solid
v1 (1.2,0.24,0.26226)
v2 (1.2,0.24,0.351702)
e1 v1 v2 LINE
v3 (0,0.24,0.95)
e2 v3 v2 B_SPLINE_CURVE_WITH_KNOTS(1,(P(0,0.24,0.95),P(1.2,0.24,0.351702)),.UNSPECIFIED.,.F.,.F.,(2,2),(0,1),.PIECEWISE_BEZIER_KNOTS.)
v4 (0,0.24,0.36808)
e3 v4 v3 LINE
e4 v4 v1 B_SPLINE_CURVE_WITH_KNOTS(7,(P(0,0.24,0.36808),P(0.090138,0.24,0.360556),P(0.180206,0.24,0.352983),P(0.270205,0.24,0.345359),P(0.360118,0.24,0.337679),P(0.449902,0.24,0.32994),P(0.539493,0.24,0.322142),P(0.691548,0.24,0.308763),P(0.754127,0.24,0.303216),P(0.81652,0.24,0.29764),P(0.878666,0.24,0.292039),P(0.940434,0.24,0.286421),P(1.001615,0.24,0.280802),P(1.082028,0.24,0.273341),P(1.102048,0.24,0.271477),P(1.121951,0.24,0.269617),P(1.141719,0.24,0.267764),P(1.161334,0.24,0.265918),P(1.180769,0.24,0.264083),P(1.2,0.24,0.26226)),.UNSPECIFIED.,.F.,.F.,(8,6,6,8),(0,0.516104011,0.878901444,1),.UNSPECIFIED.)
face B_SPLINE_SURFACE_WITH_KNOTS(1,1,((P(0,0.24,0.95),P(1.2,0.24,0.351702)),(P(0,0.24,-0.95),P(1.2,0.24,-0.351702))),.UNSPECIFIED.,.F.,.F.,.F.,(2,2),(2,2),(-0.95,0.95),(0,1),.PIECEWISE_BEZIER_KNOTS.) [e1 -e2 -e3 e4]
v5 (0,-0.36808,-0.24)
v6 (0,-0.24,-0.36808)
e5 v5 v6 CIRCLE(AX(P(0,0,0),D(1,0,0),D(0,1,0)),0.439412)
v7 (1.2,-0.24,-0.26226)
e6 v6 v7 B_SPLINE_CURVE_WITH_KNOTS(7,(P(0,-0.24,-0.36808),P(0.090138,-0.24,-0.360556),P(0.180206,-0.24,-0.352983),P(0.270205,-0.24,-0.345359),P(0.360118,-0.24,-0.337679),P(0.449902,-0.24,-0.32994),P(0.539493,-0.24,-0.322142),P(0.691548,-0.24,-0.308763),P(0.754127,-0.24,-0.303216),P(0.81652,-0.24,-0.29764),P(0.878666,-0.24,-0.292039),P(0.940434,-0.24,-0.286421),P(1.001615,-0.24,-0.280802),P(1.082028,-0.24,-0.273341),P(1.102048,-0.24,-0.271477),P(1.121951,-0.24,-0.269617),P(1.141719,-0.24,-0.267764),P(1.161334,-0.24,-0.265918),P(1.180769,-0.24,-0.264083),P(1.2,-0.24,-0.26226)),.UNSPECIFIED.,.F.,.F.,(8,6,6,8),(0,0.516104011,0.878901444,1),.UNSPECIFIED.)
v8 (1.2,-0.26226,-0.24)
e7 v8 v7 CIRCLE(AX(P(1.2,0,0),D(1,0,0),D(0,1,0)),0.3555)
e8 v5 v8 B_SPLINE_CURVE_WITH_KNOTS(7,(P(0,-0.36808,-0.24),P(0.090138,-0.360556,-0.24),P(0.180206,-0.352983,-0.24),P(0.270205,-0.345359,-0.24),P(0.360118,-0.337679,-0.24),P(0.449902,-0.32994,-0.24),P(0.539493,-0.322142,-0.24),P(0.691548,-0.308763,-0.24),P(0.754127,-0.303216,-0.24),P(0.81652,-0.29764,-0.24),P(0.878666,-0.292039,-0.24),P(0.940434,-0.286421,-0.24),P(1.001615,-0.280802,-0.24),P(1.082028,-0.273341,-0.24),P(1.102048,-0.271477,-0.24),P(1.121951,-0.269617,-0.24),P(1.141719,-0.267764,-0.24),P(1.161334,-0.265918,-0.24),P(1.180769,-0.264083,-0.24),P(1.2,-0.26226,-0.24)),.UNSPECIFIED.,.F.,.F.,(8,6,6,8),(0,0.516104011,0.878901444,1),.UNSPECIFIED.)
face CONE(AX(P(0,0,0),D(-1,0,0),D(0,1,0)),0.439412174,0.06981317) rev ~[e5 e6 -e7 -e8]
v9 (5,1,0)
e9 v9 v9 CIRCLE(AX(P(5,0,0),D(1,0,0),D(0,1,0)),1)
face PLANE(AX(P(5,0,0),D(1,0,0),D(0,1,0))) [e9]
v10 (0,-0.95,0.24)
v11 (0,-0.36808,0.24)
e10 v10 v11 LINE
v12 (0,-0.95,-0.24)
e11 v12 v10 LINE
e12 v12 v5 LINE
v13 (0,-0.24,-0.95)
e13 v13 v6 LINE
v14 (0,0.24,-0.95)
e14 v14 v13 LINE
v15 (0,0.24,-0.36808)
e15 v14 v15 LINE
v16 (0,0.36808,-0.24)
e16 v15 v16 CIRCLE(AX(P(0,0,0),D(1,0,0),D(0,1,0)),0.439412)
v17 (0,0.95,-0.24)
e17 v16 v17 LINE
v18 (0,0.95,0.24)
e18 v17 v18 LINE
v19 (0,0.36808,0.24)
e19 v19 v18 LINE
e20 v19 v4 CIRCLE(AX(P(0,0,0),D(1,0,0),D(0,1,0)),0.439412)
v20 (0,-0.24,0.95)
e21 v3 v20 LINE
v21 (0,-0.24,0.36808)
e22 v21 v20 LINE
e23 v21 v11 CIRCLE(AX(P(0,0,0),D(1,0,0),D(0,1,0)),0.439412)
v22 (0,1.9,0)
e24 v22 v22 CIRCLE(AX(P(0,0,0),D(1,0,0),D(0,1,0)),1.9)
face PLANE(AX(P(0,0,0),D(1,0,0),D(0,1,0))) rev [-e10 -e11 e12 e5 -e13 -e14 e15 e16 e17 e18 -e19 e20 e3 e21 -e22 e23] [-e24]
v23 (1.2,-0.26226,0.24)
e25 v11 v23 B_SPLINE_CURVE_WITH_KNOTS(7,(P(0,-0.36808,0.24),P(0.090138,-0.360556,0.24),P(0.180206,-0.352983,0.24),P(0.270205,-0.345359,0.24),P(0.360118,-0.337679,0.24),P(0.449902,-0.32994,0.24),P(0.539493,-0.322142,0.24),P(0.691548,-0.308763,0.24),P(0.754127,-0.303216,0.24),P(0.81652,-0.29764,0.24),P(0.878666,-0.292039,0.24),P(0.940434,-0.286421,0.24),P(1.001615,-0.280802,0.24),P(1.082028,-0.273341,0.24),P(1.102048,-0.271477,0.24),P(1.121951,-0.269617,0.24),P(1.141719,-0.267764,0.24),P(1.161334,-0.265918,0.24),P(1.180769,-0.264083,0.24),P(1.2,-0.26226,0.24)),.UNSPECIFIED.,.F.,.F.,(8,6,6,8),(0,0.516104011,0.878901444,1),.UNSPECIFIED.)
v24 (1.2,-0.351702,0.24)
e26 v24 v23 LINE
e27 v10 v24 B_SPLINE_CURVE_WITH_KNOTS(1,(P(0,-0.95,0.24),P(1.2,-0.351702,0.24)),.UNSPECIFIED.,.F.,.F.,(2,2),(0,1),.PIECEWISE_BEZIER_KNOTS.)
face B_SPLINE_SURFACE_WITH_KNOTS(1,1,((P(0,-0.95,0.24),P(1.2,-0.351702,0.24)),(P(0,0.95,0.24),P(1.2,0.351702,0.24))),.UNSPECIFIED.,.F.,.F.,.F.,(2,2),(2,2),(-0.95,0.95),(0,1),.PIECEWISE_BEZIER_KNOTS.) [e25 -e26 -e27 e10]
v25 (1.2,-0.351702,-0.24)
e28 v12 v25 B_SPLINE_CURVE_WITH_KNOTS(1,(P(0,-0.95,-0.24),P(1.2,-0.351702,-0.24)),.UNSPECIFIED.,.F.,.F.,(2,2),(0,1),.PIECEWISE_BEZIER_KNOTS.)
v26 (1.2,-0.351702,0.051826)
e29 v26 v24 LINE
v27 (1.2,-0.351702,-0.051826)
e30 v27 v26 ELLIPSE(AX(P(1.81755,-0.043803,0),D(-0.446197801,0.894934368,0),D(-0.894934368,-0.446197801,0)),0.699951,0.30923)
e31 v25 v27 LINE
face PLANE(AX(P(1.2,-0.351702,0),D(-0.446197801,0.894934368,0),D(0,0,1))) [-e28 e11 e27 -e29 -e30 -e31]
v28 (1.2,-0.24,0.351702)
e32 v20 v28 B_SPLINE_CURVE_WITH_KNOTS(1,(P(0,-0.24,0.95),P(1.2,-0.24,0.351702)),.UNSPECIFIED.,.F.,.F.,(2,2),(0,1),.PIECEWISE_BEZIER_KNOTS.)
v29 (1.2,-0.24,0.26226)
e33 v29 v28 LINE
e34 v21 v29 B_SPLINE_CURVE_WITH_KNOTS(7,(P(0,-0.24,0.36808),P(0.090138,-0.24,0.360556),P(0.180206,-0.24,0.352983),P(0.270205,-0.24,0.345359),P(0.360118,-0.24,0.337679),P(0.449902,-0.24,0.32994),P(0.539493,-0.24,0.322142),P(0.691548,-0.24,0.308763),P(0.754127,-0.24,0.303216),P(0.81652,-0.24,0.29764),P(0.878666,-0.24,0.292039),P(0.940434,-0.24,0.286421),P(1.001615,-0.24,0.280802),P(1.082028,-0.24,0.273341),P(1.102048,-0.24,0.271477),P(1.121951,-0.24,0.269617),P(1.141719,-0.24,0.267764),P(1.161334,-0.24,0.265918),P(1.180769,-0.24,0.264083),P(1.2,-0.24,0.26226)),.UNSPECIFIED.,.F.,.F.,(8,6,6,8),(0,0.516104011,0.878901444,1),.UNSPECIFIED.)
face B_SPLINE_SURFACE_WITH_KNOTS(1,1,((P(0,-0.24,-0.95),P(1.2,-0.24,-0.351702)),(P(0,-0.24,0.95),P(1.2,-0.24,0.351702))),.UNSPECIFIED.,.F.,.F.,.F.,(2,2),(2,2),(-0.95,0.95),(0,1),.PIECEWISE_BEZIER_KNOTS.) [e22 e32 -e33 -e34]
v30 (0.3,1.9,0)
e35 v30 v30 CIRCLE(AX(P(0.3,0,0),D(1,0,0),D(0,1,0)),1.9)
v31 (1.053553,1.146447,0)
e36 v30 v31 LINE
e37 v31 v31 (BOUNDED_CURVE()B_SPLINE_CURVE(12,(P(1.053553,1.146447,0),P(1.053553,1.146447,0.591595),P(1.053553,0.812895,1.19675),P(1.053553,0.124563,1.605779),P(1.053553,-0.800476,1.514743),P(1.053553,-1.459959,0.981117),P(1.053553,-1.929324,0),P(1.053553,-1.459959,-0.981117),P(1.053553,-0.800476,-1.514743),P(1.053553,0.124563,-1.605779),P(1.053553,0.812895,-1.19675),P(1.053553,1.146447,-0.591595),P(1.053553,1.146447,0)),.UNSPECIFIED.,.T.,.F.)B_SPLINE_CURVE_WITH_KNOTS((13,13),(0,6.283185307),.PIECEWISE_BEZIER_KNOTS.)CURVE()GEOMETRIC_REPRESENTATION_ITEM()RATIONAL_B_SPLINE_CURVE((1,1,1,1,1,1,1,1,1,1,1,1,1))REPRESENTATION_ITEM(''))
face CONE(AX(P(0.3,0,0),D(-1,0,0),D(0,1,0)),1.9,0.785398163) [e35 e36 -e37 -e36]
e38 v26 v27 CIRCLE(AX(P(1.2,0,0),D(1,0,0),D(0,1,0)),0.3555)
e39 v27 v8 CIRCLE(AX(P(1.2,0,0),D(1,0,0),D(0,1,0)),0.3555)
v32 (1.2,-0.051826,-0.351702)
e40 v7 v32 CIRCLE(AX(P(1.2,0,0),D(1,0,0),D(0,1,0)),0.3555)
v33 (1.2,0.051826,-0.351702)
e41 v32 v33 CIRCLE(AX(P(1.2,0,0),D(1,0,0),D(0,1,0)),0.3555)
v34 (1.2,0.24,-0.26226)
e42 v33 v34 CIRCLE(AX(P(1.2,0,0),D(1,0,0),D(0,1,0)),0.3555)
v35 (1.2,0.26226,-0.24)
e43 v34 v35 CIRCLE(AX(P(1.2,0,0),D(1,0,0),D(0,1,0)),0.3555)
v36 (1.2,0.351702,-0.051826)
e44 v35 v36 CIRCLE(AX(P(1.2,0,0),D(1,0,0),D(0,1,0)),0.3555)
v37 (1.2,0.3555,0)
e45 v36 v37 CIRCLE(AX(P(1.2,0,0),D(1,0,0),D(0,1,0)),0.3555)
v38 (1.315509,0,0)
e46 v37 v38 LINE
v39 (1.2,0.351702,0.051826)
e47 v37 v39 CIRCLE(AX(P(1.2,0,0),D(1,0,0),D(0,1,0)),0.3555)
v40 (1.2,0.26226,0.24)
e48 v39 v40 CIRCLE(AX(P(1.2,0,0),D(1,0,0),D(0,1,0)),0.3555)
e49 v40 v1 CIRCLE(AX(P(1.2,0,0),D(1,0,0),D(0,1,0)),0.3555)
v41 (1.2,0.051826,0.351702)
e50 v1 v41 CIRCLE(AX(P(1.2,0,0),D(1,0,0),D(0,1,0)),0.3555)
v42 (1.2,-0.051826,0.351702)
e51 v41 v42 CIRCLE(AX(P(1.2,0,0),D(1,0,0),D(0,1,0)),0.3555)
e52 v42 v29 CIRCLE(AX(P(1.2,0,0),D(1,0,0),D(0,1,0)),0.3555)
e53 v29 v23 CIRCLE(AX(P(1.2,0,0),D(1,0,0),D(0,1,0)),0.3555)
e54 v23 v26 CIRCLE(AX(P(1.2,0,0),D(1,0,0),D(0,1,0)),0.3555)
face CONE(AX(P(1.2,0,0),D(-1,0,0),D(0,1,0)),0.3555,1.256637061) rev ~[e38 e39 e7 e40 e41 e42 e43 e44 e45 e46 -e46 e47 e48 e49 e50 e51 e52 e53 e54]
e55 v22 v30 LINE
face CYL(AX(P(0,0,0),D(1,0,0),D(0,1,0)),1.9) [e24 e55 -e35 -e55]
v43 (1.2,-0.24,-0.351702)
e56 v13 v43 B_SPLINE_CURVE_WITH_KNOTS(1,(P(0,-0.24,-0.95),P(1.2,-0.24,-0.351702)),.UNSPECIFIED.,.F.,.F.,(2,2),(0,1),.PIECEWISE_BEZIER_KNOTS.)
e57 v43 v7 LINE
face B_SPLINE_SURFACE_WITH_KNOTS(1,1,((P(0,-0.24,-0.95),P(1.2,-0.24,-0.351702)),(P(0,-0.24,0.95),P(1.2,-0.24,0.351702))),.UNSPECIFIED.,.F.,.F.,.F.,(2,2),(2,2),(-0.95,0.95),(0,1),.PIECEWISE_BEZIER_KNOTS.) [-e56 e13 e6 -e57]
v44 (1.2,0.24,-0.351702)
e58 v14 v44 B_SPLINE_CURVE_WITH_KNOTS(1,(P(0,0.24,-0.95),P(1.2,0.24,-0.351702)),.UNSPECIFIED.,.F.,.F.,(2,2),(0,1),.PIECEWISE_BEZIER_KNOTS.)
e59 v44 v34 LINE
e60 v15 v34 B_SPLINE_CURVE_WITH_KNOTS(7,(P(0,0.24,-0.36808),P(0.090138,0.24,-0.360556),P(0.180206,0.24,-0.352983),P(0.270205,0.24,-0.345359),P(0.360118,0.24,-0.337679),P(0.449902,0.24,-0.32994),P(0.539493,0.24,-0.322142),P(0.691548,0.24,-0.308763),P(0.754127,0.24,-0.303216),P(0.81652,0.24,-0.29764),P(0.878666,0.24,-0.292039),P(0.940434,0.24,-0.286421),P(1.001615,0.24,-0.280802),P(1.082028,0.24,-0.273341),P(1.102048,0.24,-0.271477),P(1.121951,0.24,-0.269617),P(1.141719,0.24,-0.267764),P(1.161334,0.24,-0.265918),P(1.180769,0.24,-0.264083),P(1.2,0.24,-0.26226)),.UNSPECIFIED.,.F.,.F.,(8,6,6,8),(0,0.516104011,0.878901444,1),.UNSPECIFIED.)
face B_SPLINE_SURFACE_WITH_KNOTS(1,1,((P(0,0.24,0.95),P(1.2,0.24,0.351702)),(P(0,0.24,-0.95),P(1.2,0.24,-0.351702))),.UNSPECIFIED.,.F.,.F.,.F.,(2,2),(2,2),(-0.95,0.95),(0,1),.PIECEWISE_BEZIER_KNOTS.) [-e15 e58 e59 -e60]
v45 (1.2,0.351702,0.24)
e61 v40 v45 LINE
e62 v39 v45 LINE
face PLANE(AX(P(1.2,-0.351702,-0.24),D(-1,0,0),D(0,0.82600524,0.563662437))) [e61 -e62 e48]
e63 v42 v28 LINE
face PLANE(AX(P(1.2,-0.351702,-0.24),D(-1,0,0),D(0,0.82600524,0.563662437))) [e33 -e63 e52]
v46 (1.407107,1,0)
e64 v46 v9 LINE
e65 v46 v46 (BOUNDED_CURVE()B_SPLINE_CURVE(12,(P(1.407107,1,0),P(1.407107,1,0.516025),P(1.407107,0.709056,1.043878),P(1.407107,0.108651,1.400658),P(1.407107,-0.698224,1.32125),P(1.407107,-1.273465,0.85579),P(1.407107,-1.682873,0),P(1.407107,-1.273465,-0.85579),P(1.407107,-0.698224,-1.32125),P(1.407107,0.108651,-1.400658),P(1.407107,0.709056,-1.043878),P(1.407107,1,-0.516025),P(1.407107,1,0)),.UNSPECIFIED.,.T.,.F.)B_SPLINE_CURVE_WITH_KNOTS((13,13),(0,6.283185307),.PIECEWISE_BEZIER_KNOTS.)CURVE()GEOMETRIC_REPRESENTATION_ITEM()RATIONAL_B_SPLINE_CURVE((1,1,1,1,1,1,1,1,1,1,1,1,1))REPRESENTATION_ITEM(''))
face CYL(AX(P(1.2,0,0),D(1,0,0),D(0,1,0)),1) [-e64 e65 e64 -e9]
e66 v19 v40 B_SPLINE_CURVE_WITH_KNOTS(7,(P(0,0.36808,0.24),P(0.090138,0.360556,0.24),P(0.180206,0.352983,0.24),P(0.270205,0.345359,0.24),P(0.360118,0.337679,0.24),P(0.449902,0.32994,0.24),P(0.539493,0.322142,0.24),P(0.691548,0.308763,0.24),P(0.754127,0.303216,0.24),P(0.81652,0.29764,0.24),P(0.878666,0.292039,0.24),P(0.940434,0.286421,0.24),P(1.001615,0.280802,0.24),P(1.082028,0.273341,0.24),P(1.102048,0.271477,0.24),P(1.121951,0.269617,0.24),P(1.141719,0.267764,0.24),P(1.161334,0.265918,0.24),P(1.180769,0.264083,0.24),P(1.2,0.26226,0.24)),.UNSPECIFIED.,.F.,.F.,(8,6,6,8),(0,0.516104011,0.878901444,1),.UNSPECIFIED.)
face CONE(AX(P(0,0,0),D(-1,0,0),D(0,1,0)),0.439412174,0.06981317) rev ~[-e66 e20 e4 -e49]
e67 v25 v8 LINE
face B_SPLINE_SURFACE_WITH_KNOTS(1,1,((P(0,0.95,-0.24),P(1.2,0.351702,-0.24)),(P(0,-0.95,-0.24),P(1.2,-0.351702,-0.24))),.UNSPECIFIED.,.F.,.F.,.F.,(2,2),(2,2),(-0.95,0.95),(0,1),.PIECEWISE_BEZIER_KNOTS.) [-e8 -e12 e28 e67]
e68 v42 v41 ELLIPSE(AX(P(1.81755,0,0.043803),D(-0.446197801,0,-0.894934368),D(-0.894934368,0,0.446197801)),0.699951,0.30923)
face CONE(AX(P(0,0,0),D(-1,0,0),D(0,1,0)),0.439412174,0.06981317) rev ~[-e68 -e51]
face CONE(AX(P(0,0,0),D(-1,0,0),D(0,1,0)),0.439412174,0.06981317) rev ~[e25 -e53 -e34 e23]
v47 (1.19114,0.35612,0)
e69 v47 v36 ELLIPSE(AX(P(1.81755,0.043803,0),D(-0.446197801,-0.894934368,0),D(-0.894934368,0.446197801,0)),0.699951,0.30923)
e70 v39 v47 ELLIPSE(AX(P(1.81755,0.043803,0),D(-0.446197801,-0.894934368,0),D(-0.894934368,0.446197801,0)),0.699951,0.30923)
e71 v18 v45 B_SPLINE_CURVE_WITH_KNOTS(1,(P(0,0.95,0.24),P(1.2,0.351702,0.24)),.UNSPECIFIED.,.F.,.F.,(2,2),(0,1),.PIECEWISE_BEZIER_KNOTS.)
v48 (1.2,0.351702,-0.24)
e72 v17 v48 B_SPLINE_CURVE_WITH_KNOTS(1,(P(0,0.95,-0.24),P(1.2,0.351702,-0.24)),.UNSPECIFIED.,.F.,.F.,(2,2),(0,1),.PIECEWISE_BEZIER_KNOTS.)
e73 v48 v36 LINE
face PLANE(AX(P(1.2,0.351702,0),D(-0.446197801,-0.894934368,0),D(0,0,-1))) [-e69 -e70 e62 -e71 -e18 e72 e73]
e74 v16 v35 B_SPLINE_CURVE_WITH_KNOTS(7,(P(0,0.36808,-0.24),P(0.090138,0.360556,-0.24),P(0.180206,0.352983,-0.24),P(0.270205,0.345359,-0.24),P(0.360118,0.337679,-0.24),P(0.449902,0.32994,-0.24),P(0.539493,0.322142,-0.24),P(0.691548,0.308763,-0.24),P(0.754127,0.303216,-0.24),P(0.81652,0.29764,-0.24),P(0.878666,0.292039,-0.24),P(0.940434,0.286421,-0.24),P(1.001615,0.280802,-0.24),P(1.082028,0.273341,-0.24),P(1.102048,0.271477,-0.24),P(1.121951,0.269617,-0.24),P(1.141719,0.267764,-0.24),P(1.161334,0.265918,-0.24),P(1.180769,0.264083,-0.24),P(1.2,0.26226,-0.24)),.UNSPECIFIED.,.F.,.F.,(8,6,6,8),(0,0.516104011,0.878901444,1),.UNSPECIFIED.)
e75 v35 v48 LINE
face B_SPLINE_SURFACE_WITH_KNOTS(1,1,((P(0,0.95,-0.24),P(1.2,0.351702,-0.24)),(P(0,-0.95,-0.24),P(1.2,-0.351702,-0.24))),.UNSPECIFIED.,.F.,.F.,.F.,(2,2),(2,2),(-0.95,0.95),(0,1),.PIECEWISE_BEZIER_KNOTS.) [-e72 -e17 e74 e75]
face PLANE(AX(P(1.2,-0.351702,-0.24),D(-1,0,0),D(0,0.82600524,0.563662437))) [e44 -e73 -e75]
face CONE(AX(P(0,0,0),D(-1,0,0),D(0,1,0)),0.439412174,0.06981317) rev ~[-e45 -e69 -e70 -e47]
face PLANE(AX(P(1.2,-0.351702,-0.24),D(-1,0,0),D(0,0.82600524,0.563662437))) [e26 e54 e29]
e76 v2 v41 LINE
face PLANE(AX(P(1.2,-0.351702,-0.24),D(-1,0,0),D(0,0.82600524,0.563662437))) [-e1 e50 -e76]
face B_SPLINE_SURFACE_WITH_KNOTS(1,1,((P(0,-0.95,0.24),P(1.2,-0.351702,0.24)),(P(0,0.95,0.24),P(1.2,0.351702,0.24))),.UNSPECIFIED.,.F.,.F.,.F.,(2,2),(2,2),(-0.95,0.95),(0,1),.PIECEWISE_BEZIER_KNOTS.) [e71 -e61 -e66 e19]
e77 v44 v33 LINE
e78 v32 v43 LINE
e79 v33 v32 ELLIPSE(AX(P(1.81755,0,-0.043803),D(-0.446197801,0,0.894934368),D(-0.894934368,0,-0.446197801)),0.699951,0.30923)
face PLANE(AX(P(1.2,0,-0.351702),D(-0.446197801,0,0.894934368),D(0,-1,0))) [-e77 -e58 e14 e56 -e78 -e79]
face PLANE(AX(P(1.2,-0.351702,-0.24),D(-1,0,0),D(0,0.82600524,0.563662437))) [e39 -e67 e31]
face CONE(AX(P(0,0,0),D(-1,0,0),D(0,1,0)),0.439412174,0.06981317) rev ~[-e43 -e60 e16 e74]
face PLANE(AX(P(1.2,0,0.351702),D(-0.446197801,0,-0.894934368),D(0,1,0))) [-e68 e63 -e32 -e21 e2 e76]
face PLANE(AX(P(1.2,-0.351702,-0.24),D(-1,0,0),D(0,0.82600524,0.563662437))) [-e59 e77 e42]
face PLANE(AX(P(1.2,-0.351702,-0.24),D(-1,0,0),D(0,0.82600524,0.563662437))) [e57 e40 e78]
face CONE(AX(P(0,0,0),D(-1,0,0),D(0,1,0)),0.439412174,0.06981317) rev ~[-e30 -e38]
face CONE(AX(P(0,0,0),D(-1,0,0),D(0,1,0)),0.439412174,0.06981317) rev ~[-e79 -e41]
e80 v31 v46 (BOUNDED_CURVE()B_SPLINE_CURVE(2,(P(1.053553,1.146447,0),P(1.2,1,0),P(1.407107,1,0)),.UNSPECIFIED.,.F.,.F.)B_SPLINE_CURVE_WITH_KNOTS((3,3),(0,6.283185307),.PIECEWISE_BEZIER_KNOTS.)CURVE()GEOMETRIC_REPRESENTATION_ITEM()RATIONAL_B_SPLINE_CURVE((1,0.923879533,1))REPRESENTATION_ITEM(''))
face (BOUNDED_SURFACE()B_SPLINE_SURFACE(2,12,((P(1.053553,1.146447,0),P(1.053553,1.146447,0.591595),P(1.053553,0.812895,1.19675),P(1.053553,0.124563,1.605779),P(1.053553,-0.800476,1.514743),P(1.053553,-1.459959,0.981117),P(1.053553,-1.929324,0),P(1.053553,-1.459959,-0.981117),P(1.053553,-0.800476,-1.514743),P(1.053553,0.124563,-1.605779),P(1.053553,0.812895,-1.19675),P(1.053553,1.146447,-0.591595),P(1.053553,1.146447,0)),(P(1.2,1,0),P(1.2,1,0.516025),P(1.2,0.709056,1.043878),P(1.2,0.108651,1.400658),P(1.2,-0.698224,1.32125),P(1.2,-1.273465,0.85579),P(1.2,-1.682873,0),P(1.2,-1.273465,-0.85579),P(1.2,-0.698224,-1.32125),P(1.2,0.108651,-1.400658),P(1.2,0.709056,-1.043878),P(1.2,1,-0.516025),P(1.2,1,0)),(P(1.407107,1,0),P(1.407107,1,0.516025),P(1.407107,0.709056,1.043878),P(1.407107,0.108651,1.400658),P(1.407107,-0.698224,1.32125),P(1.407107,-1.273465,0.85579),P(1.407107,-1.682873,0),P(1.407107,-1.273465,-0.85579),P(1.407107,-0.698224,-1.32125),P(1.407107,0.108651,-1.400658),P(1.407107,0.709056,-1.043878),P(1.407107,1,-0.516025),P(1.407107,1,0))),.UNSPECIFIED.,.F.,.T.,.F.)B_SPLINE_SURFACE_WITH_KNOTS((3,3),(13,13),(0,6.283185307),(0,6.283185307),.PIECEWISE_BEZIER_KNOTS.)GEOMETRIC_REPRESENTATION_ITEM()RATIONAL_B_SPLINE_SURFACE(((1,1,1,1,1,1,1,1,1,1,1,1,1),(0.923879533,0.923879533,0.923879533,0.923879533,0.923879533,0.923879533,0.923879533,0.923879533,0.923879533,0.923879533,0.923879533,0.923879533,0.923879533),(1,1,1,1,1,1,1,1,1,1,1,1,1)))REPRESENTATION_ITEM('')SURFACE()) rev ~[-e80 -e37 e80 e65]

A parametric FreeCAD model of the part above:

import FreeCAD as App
import Part
import Sketcher
Q = App.Units.Quantity


def edges_at(feature, points):
    """Names of the edges that pass closest to the given points."""
    edges = feature.Shape.Edges
    near = lambda p: min(range(len(edges)), key=lambda i: edges[i].distToShape(Part.Vertex(*p))[0])
    return sorted({f"Edge{near(p) + 1}" for p in points})


def add_polygon(sketch, points):
    """Adds a closed chain of lines whose ends are joined by coincident constraints."""
    first, n = sketch.GeometryCount, len(points)
    for a, b in zip(points, points[1:] + points[:1]):
        sketch.addGeometry(Part.LineSegment(App.Vector(*a, 0), App.Vector(*b, 0)), False)
    for i in range(n):
        sketch.addConstraint(Sketcher.Constraint("Coincident", first + i, 2, first + (i + 1) % n, 1))

doc = App.newDocument("Part")
body = doc.addObject("PartDesign::Body", "Body")

# Sketch on XY plane
sketch1 = body.newObject("Sketcher::SketchObject", "Sketch")
sketch1.AttachmentSupport = (doc.getObject("XY_Plane"), [""])
sketch1.MapMode = "FlatFace"
add_polygon(sketch1, [(0, 1.9), (0, 0), (5, 0), (5, 1), (1.2, 1), (0.3, 1.9)])  # lines 0-5
sketch1.addConstraint([
    Sketcher.Constraint("Vertical", 0),
    Sketcher.Constraint("Horizontal", 1),
    Sketcher.Constraint("Vertical", 2),
    Sketcher.Constraint("Horizontal", 3),
    Sketcher.Constraint("Horizontal", 5),
    Sketcher.Constraint("Coincident", 0, 2, -1, 1),
    Sketcher.Constraint("DistanceX", 1, 1, 1, 2, Q("5 mm")),
    Sketcher.Constraint("DistanceY", 2, 1, 2, 2, Q("1 mm")),
    Sketcher.Constraint("Angle", 4, Q("135 deg")),
    Sketcher.Constraint("DistanceX", 3, 2, 3, 1, Q("3.8 mm")),
    Sketcher.Constraint("DistanceX", 5, 2, 5, 1, Q("0.3 mm")),
])
revolution = body.newObject("PartDesign::Revolution", "Revolution")
revolution.Profile = sketch1
revolution.ReferenceAxis = (sketch1, ["H_Axis"])
revolution.Angle = 360
doc.recompute()

fillet = body.newObject("PartDesign::Fillet", "Fillet")
fillet.Base = (revolution, edges_at(revolution, [(1.2, -1, 0)]))
fillet.Radius = 0.5

# Sketch on YZ plane
sketch2 = body.newObject("Sketcher::SketchObject", "Sketch001")
sketch2.AttachmentSupport = (doc.getObject("YZ_Plane"), [""])
sketch2.MapMode = "FlatFace"
add_polygon(sketch2, [(0.95, -0.24), (-0.95, -0.24), (-0.95, 0.24), (0.95, 0.24)])  # lines 0-3
sketch2.addConstraint([
    Sketcher.Constraint("Horizontal", 0),
    Sketcher.Constraint("Vertical", 1),
    Sketcher.Constraint("Horizontal", 2),
    Sketcher.Constraint("Vertical", 3),
    Sketcher.Constraint("Symmetric", 0, 2, 2, 2, -1, 1),
    Sketcher.Constraint("DistanceX", 0, 2, 0, 1, Q("1.9 mm")),
    Sketcher.Constraint("DistanceY", 1, 1, 1, 2, Q("0.48 mm")),
])

# Sketch on YZ plane
sketch3 = body.newObject("Sketcher::SketchObject", "Sketch002")
sketch3.AttachmentSupport = (doc.getObject("YZ_Plane"), [""])
sketch3.MapMode = "FlatFace"
sketch3.AttachmentOffset = App.Placement(App.Vector(0, 0, 1.2), App.Rotation())
add_polygon(sketch3, [(0.35, -0.24), (-0.35, -0.24), (-0.35, 0.24), (0.35, 0.24)])  # lines 0-3
sketch3.addConstraint([
    Sketcher.Constraint("Horizontal", 0),
    Sketcher.Constraint("Vertical", 1),
    Sketcher.Constraint("Horizontal", 2),
    Sketcher.Constraint("Vertical", 3),
    Sketcher.Constraint("Symmetric", 0, 2, 2, 2, -1, 1),
    Sketcher.Constraint("DistanceY", 1, 1, 1, 2, Q("0.48 mm")),
    Sketcher.Constraint("DistanceX", 0, 2, 0, 1, Q("0.703404 mm")),
])

subtractiveloft = body.newObject("PartDesign::SubtractiveLoft", "SubtractiveLoft")
subtractiveloft.Profile = sketch2
subtractiveloft.Sections = [sketch3]
doc.recompute()

polarpattern = body.newObject("PartDesign::PolarPattern", "PolarPattern")
polarpattern.Originals = [subtractiveloft]
polarpattern.Axis = (doc.getObject("X_Axis"), [""])
polarpattern.Angle = 90
polarpattern.Occurrences = 2
body.Tip = polarpattern

# Sketch on XY plane
sketch4 = body.newObject("Sketcher::SketchObject", "Sketch003")
sketch4.AttachmentSupport = (doc.getObject("XY_Plane"), [""])
sketch4.MapMode = "FlatFace"
add_polygon(sketch4, [(0, 0.44), (0, 0), (1.32, 0), (1.2, 0.36)])  # lines 0-3
sketch4.addConstraint([
    Sketcher.Constraint("Vertical", 0),
    Sketcher.Constraint("Horizontal", 1),
    Sketcher.Constraint("Coincident", 0, 2, -1, 1),
    Sketcher.Constraint("Angle", 2, Q("108 deg")),
    Sketcher.Constraint("Angle", 3, Q("176 deg")),
    Sketcher.Constraint("DistanceX", -1, 1, 2, 2, Q("1.2 mm")),
    Sketcher.Constraint("DistanceX", 1, 1, 1, 2, Q("1.315509 mm")),
])
groove = body.newObject("PartDesign::Groove", "Groove")
groove.Profile = sketch4
groove.ReferenceAxis = (sketch4, ["H_Axis"])
groove.Angle = 360

doc.recompute()
